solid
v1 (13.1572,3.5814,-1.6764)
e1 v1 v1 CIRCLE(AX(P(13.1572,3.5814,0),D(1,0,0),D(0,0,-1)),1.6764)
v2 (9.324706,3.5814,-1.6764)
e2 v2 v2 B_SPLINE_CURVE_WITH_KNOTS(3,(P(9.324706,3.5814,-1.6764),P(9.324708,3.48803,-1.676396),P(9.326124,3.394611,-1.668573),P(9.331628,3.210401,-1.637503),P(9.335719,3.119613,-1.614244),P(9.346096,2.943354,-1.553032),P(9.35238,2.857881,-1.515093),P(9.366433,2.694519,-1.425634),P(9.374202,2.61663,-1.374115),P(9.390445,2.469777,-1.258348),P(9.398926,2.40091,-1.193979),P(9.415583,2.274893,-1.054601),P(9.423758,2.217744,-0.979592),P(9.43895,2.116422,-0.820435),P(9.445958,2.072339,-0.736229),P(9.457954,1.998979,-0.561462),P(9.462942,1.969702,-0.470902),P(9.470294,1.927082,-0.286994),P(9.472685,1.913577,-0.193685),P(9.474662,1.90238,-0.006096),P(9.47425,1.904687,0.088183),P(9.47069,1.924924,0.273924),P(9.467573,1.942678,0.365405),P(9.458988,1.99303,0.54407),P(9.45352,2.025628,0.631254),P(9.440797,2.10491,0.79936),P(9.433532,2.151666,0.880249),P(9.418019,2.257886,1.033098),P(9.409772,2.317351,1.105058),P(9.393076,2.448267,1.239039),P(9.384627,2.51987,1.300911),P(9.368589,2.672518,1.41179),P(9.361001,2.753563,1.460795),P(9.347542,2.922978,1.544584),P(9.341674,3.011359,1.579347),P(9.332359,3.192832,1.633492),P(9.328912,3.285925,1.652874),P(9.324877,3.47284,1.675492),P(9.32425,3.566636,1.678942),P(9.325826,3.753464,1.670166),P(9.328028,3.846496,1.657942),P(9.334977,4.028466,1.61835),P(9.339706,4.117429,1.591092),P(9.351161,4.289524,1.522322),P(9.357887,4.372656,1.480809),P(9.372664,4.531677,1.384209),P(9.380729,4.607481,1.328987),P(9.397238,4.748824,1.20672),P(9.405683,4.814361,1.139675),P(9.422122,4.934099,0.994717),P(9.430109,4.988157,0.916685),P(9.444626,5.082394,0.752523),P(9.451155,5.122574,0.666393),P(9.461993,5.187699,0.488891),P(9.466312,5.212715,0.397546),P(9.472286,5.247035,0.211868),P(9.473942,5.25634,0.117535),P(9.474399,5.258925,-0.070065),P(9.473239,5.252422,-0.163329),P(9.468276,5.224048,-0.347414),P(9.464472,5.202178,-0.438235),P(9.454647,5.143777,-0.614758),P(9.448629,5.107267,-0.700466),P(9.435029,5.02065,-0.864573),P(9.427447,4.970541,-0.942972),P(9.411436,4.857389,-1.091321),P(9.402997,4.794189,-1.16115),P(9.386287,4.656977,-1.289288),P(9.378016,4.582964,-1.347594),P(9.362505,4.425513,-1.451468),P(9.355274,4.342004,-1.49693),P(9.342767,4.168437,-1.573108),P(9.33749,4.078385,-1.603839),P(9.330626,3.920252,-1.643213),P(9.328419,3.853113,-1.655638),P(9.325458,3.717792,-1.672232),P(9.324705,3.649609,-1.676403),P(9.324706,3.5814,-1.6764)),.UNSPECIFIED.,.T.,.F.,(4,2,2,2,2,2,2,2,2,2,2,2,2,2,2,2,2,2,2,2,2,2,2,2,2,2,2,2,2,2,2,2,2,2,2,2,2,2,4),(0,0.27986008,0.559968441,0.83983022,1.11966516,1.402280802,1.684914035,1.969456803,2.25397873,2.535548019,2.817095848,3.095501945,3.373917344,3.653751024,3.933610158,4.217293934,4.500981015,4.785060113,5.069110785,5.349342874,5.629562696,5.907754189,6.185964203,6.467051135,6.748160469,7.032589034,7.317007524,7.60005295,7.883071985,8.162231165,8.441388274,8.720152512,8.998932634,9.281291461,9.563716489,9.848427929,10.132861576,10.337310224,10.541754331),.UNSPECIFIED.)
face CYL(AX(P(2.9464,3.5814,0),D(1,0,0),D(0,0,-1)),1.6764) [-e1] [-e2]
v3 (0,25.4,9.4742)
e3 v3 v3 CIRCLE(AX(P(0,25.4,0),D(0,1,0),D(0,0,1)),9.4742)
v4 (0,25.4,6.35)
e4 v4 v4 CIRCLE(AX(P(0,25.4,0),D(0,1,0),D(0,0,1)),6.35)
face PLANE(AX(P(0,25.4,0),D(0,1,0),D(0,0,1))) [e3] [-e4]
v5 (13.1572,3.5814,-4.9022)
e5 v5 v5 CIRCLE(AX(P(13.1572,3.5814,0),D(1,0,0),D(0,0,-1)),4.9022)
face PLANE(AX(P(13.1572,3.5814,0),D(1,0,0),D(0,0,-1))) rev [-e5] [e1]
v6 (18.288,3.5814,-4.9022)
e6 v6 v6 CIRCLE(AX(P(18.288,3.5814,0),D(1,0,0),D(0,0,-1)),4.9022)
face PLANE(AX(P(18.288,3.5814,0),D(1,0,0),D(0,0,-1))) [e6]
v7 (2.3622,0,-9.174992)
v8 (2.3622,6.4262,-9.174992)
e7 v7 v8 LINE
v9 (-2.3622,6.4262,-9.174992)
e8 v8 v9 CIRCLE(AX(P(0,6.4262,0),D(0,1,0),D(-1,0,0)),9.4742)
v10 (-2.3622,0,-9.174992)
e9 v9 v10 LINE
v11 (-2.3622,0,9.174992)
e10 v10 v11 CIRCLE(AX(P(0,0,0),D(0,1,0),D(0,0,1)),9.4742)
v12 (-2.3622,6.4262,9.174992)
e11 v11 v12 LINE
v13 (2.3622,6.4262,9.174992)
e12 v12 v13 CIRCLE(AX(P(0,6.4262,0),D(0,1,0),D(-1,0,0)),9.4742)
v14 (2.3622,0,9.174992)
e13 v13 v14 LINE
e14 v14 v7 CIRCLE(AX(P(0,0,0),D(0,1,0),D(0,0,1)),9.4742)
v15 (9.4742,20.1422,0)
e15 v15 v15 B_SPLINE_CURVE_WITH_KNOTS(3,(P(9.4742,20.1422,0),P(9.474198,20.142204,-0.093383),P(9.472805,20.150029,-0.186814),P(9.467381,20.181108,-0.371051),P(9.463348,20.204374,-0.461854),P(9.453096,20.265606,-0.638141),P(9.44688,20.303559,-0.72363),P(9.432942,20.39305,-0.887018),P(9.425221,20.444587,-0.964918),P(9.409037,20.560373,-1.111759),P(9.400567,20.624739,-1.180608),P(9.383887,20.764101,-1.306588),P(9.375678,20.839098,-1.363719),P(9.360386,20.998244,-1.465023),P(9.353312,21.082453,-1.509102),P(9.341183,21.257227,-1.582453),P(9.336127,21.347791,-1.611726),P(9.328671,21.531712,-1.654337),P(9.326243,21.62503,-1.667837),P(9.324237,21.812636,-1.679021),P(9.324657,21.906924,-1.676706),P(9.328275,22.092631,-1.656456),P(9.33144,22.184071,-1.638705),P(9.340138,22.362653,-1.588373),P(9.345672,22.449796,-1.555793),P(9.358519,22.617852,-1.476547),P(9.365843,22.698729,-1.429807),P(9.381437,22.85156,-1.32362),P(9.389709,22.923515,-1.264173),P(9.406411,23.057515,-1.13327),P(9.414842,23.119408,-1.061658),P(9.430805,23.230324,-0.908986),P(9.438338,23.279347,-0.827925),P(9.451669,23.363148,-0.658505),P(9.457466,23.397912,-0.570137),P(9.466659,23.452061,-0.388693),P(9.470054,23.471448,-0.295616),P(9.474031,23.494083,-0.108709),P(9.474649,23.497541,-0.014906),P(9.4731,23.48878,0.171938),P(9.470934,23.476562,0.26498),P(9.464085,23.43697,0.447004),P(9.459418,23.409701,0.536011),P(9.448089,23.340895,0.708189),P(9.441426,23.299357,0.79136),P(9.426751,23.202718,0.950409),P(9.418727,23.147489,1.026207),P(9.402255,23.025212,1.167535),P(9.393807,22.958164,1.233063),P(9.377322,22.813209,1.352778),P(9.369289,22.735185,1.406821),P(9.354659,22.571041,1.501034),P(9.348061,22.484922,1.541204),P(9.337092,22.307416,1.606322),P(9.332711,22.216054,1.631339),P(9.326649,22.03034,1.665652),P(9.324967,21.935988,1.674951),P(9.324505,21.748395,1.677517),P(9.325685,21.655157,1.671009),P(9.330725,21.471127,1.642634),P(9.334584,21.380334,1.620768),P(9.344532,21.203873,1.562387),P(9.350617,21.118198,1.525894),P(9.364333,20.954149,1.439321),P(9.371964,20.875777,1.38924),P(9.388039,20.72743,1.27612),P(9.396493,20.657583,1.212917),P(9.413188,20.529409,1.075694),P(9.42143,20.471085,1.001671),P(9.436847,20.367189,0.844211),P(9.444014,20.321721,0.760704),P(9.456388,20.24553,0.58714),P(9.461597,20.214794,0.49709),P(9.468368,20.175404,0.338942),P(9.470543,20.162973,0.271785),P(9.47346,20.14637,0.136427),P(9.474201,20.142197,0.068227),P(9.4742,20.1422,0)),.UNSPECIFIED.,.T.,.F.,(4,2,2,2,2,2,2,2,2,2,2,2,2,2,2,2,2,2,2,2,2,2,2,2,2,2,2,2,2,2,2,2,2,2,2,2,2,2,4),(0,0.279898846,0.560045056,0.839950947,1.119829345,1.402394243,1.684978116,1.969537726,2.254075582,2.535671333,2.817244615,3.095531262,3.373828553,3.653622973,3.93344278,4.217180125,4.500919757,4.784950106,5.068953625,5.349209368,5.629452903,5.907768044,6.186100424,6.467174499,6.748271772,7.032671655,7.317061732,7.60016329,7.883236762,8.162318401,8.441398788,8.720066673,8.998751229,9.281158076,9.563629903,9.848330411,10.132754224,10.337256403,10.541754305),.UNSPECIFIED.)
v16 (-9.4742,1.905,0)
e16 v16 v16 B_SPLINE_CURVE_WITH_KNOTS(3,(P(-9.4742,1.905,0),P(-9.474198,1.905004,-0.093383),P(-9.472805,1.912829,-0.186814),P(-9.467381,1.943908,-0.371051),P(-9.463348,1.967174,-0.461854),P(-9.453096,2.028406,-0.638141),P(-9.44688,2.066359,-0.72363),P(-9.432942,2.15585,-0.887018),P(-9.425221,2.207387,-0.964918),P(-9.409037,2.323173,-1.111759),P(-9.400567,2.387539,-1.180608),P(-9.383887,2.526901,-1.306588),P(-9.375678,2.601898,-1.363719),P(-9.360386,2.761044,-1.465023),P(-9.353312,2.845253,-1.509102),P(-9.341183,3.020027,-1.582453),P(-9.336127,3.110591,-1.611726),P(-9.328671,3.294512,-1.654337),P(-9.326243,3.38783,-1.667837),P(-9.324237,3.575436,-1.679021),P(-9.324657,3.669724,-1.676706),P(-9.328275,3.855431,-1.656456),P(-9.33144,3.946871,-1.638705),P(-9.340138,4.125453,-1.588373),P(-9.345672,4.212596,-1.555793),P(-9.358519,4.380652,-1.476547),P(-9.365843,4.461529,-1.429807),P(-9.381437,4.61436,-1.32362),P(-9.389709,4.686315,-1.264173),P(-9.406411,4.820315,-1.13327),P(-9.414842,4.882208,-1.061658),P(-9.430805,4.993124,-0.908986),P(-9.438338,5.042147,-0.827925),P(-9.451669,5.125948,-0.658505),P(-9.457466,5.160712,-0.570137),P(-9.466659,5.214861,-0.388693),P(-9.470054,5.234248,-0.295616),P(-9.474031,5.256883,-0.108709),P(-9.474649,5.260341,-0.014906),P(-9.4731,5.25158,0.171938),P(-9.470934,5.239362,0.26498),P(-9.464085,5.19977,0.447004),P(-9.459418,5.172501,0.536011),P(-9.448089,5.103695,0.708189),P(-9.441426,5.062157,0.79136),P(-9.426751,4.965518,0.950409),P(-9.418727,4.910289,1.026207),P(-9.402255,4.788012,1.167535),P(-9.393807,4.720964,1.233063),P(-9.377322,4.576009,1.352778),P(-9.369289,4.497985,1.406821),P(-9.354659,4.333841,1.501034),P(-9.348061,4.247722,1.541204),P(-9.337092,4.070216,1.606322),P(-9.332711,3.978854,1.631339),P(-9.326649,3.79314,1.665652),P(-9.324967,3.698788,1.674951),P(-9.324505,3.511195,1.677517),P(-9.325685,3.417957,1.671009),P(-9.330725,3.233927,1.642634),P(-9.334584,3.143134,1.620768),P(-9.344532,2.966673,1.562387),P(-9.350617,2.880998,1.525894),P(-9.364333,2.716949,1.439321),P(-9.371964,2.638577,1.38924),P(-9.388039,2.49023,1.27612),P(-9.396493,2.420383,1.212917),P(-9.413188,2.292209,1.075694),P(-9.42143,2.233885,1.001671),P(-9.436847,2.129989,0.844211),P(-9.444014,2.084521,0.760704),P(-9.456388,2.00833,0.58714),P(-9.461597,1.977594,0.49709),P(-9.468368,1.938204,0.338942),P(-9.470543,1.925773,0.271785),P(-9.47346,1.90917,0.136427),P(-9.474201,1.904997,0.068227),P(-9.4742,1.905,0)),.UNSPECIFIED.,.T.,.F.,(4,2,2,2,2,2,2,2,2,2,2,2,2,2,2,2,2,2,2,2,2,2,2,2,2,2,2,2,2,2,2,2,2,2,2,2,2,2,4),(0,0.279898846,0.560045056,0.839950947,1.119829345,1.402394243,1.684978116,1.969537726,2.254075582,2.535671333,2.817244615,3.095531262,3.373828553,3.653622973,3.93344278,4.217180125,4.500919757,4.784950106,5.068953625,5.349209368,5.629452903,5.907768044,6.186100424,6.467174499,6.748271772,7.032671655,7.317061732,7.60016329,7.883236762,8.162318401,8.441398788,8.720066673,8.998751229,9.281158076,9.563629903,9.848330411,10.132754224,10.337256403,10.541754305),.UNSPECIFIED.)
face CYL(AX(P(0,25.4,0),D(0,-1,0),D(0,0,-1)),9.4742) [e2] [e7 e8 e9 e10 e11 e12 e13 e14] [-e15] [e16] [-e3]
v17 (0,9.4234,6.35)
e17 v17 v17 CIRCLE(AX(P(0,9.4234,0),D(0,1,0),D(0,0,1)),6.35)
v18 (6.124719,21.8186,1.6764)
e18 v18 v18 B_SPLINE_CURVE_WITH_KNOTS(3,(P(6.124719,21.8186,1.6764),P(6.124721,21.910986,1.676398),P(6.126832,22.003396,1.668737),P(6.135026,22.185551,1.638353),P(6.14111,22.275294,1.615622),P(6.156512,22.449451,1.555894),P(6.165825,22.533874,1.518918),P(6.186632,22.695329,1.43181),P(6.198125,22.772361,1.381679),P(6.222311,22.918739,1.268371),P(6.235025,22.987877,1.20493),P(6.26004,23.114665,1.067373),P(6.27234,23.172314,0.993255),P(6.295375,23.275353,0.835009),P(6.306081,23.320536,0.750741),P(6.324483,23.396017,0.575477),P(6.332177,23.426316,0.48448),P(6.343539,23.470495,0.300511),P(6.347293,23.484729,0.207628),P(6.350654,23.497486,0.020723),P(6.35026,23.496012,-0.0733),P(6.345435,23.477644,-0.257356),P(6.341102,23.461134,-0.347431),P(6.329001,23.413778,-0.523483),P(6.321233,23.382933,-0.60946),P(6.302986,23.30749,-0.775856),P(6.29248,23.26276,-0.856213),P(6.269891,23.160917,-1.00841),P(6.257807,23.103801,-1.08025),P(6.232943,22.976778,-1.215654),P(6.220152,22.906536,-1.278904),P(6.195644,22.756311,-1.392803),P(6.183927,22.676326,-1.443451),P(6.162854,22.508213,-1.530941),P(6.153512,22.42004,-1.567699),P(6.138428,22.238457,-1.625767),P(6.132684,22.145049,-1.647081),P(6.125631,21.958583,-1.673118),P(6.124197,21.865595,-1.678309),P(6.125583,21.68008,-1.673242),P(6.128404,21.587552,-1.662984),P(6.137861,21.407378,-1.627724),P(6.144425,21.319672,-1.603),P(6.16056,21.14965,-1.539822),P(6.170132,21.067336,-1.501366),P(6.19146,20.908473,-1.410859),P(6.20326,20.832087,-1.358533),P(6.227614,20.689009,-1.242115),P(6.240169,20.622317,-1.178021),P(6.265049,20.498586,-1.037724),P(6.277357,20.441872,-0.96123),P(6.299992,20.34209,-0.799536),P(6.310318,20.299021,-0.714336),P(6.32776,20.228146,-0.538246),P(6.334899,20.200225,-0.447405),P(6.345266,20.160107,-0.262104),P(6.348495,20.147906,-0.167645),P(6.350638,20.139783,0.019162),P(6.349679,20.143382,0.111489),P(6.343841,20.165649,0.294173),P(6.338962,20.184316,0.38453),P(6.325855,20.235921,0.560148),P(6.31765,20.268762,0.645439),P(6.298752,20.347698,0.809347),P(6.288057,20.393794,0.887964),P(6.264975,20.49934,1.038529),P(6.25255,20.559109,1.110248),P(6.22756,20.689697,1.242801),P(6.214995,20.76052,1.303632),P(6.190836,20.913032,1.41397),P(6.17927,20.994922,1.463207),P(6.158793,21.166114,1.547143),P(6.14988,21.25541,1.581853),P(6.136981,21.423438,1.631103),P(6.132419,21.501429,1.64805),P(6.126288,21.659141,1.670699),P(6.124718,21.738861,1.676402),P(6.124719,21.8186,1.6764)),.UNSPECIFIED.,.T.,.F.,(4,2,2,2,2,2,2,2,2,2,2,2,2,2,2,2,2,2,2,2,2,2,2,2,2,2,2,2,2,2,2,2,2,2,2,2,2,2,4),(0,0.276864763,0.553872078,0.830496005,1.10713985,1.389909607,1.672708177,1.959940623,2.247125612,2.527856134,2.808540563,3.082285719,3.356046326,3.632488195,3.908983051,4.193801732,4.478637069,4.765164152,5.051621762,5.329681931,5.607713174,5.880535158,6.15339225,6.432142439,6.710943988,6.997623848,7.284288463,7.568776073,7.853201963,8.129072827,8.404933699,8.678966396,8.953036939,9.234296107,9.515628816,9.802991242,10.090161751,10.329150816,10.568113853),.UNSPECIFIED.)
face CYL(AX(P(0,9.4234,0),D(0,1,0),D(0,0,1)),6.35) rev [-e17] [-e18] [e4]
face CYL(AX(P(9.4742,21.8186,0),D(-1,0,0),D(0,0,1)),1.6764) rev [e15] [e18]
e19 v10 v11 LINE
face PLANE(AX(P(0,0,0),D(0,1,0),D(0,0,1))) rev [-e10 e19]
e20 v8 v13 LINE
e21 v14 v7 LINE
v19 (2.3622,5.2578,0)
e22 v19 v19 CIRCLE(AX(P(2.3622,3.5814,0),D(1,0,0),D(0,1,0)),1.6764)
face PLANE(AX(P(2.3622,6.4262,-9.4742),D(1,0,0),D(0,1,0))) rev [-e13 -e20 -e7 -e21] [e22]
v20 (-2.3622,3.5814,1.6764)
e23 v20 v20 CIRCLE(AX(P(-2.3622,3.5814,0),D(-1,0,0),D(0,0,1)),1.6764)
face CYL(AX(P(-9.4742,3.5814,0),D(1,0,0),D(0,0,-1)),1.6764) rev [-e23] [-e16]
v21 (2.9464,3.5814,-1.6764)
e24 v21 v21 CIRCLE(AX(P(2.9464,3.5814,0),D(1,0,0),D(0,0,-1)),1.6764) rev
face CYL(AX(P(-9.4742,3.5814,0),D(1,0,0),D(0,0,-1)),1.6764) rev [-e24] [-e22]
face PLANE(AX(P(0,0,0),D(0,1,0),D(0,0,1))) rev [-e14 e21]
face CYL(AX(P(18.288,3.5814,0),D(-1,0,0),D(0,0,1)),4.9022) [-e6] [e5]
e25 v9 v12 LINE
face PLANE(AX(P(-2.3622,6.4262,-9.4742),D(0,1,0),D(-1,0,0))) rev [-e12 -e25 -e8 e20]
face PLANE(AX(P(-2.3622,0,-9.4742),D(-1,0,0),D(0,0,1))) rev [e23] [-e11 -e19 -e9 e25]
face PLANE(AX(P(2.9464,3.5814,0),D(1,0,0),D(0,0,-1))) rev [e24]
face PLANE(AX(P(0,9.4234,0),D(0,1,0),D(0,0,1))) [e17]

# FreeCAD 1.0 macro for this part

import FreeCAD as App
import Part
import Sketcher

V = App.Vector
Q = App.Units.Quantity


def add_polygon(sketch, points):
    """Adds a closed chain of lines whose ends are joined by coincident constraints."""
    first, n = sketch.GeometryCount, len(points)
    for a, b in zip(points, points[1:] + points[:1]):
        sketch.addGeometry(Part.LineSegment(App.Vector(*a, 0), App.Vector(*b, 0)), False)
    for i in range(n):
        sketch.addConstraint(Sketcher.Constraint("Coincident", first + i, 2, first + (i + 1) % n, 1))

doc = App.newDocument("Part")
params = doc.addObject("Spreadsheet::Sheet", "Params")
for row, (alias, value) in enumerate([
    ("sketch1_diameter", "0.746 in"),
    ("pad1_length", "1 in"),
    ("sketch2_diameter", "0.5 in"),
    ("pocket1_length", "0.629 in"),
    ("sketch3_width", "0.186 in"),
    ("sketch3_height", "0.253 in"),
    ("sketch4_diameter", "0.132 in"),
    ("sketch5_diameter", "0.132 in"),
    ("sketch6_diameter", "0.132 in"),
    ("pad2_length", "0.145 in"),
    ("sketch7_diameter", "0.386 in"),
    ("pad3_length", "0.202 in"),
    ("sketch8_diameter", "0.132 in"),
    ("pad4_length", "0.257 in"),
], start=1):
    params.set(f"A{row}", alias)
    params.set(f"B{row}", "=" + value)
    params.setAlias(f"B{row}", alias)

body = doc.addObject("PartDesign::Body", "Body")

sketch1 = body.newObject("Sketcher::SketchObject", "Sketch")
sketch1.AttachmentSupport = (doc.getObject("XZ_Plane"), [""])
sketch1.MapMode = "FlatFace"
sketch1.addGeometry(Part.Circle(V(0, 0, 0), V(0, 0, 1), 9), False)
sketch1.addConstraint([
    Sketcher.Constraint("Coincident", 0, 3, -1, 1),
    Sketcher.Constraint("Diameter", 0, Q("0.746 in")),
])
sketch1.setExpression("Constraints[1]", "Params.sketch1_diameter")
pad1 = body.newObject("PartDesign::Pad", "Pad")
pad1.Profile = sketch1
pad1.setExpression("Length", "Params.pad1_length")
pad1.Reversed = True

sketch2 = body.newObject("Sketcher::SketchObject", "Sketch001")
sketch2.AttachmentSupport = (doc.getObject("XZ_Plane"), [""])
sketch2.MapMode = "FlatFace"
sketch2.AttachmentOffset = App.Placement(V(0, 0, -1 * 25.4), App.Rotation())
sketch2.addGeometry(Part.Circle(V(0, 0, 0), V(0, 0, 1), 6), False)
sketch2.addConstraint([
    Sketcher.Constraint("Coincident", 0, 3, -1, 1),
    Sketcher.Constraint("Diameter", 0, Q("0.5 in")),
])
sketch2.setExpression("Constraints[1]", "Params.sketch2_diameter")
pocket1 = body.newObject("PartDesign::Pocket", "Pocket")
pocket1.Profile = sketch2
pocket1.setExpression("Length", "Params.pocket1_length")
pocket1.Reversed = True

sketch3 = body.newObject("Sketcher::SketchObject", "Sketch002")
sketch3.AttachmentSupport = (doc.getObject("XY_Plane"), [""])
sketch3.MapMode = "FlatFace"
add_polygon(sketch3, [(2.4, 0), (2.4, 6.4), (-2.4, 6.4), (-2.4, 0)])
sketch3.addConstraint([
    Sketcher.Constraint("Vertical", 0),
    Sketcher.Constraint("Horizontal", 1),
    Sketcher.Constraint("Vertical", 2),
    Sketcher.Constraint("Horizontal", 3),
    Sketcher.Constraint("Symmetric", 2, 2, 3, 2, -1, 1),
    Sketcher.Constraint("DistanceX", 1, 2, 1, 1, Q("0.186 in")),
    Sketcher.Constraint("DistanceY", 0, 1, 0, 2, Q("0.253 in")),
])
sketch3.setExpression("Constraints[9]", "Params.sketch3_width")
sketch3.setExpression("Constraints[10]", "Params.sketch3_height")
pocket2 = body.newObject("PartDesign::Pocket", "Pocket001")
pocket2.Profile = sketch3
pocket2.Type = "ThroughAll"
pocket2.Midplane = True

sketch4 = body.newObject("Sketcher::SketchObject", "Sketch003")
sketch4.AttachmentSupport = (doc.getObject("YZ_Plane"), [""])
sketch4.MapMode = "FlatFace"
sketch4.addGeometry(Part.Circle(V(3.6, 0, 0), V(0, 0, 1), 1.7), False)
sketch4.addConstraint([
    Sketcher.Constraint("PointOnObject", 0, 3, -1),
    Sketcher.Constraint("Diameter", 0, Q("0.132 in")),
    Sketcher.Constraint("DistanceX", -1, 1, 0, 3, Q("0.141 in")),
])
sketch4.setExpression("Constraints[1]", "Params.sketch4_diameter")
pocket3 = body.newObject("PartDesign::Pocket", "Pocket002")
pocket3.Profile = sketch4
pocket3.Type = "ThroughAll"
pocket3.Midplane = True

sketch5 = body.newObject("Sketcher::SketchObject", "Sketch004")
sketch5.AttachmentSupport = (doc.getObject("YZ_Plane"), [""])
sketch5.MapMode = "FlatFace"
sketch5.addGeometry(Part.Circle(V(21.8, 0, 0), V(0, 0, 1), 1.7), False)
sketch5.addConstraint([
    Sketcher.Constraint("PointOnObject", 0, 3, -1),
    Sketcher.Constraint("Diameter", 0, Q("0.132 in")),
    Sketcher.Constraint("DistanceX", -1, 1, 0, 3, Q("0.859 in")),
])
sketch5.setExpression("Constraints[1]", "Params.sketch5_diameter")
pocket4 = body.newObject("PartDesign::Pocket", "Pocket003")
pocket4.Profile = sketch5
pocket4.Type = "ThroughAll"
pocket4.Reversed = True
body2 = doc.addObject("PartDesign::Body", "Body001")

sketch6 = body2.newObject("Sketcher::SketchObject", "Sketch005")
sketch6.AttachmentSupport = (doc.getObject("YZ_Plane001"), [""])
sketch6.MapMode = "FlatFace"
sketch6.AttachmentOffset = App.Placement(V(0, 0, 0.373 * 25.4), App.Rotation())
sketch6.addGeometry(Part.Circle(V(3.6, 0, 0), V(0, 0, 1), 1.7), False)
sketch6.addConstraint([
    Sketcher.Constraint("PointOnObject", 0, 3, -1),
    Sketcher.Constraint("Diameter", 0, Q("0.132 in")),
    Sketcher.Constraint("DistanceX", -1, 1, 0, 3, Q("0.141 in")),
])
sketch6.setExpression("Constraints[1]", "Params.sketch6_diameter")
pad2 = body2.newObject("PartDesign::Pad", "Pad001")
pad2.Profile = sketch6
pad2.setExpression("Length", "Params.pad2_length")

sketch7 = body2.newObject("Sketcher::SketchObject", "Sketch006")
sketch7.AttachmentSupport = (doc.getObject("YZ_Plane001"), [""])
sketch7.MapMode = "FlatFace"
sketch7.AttachmentOffset = App.Placement(V(0, 0, 0.518 * 25.4), App.Rotation())
sketch7.addGeometry(Part.Circle(V(3.6, 0, 0), V(0, 0, 1), 4.9), False)
sketch7.addConstraint([
    Sketcher.Constraint("PointOnObject", 0, 3, -1),
    Sketcher.Constraint("Diameter", 0, Q("0.386 in")),
    Sketcher.Constraint("DistanceX", -1, 1, 0, 3, Q("0.141 in")),
])
sketch7.setExpression("Constraints[1]", "Params.sketch7_diameter")
pad3 = body2.newObject("PartDesign::Pad", "Pad002")
pad3.Profile = sketch7
pad3.setExpression("Length", "Params.pad3_length")
body.AllowCompound = True
doc.recompute()

boolean = body.newObject("PartDesign::Boolean", "Boolean")
boolean.Type = "Fuse"
boolean.addObjects([body2])

sketch8 = body.newObject("Sketcher::SketchObject", "Sketch007")
sketch8.AttachmentSupport = (doc.getObject("YZ_Plane"), [""])
sketch8.MapMode = "FlatFace"
sketch8.AttachmentOffset = App.Placement(V(0, 0, 0.373 * 25.4), App.Rotation())
sketch8.addGeometry(Part.Circle(V(3.6, 0, 0), V(0, 0, 1), 1.7), False)
sketch8.addConstraint([
    Sketcher.Constraint("PointOnObject", 0, 3, -1),
    Sketcher.Constraint("Diameter", 0, Q("0.132 in")),
    Sketcher.Constraint("DistanceX", -1, 1, 0, 3, Q("0.141 in")),
])
sketch8.setExpression("Constraints[1]", "Params.sketch8_diameter")
pad4 = body.newObject("PartDesign::Pad", "Pad003")
pad4.Profile = sketch8
pad4.setExpression("Length", "Params.pad4_length")
pad4.Reversed = True

doc.recompute()
